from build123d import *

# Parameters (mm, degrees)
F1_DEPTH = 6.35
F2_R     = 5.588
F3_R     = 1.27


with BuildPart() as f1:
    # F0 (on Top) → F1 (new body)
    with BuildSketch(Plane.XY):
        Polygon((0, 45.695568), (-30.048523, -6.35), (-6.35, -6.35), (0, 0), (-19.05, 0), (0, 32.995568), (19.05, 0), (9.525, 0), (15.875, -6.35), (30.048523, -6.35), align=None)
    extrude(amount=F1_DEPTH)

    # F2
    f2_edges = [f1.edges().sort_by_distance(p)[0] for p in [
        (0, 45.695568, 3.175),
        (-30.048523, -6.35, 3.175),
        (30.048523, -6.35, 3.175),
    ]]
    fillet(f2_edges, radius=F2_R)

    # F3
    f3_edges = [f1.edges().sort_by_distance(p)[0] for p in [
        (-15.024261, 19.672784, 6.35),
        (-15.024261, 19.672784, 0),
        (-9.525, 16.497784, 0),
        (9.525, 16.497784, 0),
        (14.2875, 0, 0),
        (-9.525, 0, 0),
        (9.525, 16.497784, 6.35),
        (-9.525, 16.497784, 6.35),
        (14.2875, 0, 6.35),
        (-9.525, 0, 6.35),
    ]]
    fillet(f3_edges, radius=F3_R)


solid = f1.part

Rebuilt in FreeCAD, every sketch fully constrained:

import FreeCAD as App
import Part
import Sketcher
from FreeCAD import Vector
Q = App.Units.Quantity


def edges_at(feature, points):
    """Names of the edges that pass closest to the given points."""
    edges = feature.Shape.Edges
    near = lambda p: min(range(len(edges)), key=lambda i: edges[i].distToShape(Part.Vertex(*p))[0])
    return sorted({f"Edge{near(p) + 1}" for p in points})


def add_polygon(sketch, points):
    """Adds a closed chain of lines whose ends are joined by coincident constraints."""
    first, n = sketch.GeometryCount, len(points)
    for a, b in zip(points, points[1:] + points[:1]):
        sketch.addGeometry(Part.LineSegment(App.Vector(*a, 0), App.Vector(*b, 0)), False)
    for i in range(n):
        sketch.addConstraint(Sketcher.Constraint("Coincident", first + i, 2, first + (i + 1) % n, 1))

doc = App.newDocument("Part")
body = doc.addObject("PartDesign::Body", "Body")

sketch1 = body.newObject("Sketcher::SketchObject", "Sketch")
sketch1.AttachmentSupport = (doc.getObject("XY_Plane"), [""])
sketch1.MapMode = "FlatFace"
add_polygon(sketch1, [(0, 45.695568), (-30.048523, -6.35), (-6.35, -6.35), (0, 0), (-19.05, 0), (0, 32.995568), (19.05, 0), (9.525, 0), (15.875, -6.35), (30.048523, -6.35)])
sketch1.addConstraint(Sketcher.Constraint("Horizontal", 1))
sketch1.addConstraint(Sketcher.Constraint("Horizontal", 3))
sketch1.addConstraint(Sketcher.Constraint("Horizontal", 6))
sketch1.addConstraint(Sketcher.Constraint("Horizontal", 8))
sketch1.addConstraint(Sketcher.Constraint("Coincident", 2, 2, -1, 1))
sketch1.addConstraint(Sketcher.Constraint("Symmetric", 3, 2, 5, 2, -1, 1))
sketch1.addConstraint(Sketcher.Constraint("Symmetric", 0, 2, 8, 2, -2))
sketch1.addConstraint(Sketcher.Constraint("PointOnObject", 4, 2, -2))
sketch1.addConstraint(Sketcher.Constraint("PointOnObject", 9, 2, -2))
sketch1.addConstraint(Sketcher.Constraint("Parallel", 0, 4))
sketch1.addConstraint(Sketcher.Constraint("Perpendicular", 2, 7))
sketch1.addConstraint(Sketcher.Constraint("Equal", 2, 7))
sketch1.addConstraint(Sketcher.Constraint("Angle", 0, Q("-120 deg")))
sketch1.addConstraint(Sketcher.Constraint("DistanceX", 1, 2, 5, 2, Q("1 in")))
sketch1.addConstraint(Sketcher.Constraint("Distance", 4, Q("1.5 in")))
sketch1.addConstraint(Sketcher.Constraint("DistanceY", 4, 2, 9, 2, Q("0.5 in")))
sketch1.addConstraint(Sketcher.Constraint("DistanceX", 6, 2, 6, 1, Q("0.375 in")))
pad1 = body.newObject("PartDesign::Pad", "Pad")
pad1.Profile = sketch1
pad1.Length = Q("0.25 in")
doc.recompute()

fillet = body.newObject("PartDesign::Fillet", "Fillet")
fillet.Base = (pad1, edges_at(pad1, [(0, 45.696, 3.175), (-30.049, -6.35, 3.175), (30.049, -6.35, 3.175)]))
fillet.Radius = Q("0.22 in")
doc.recompute()

fillet2 = body.newObject("PartDesign::Fillet", "Fillet001")
fillet2.Base = (fillet, edges_at(fillet, [
    (-15.024, 19.673, 6.35),
    (-15.024, 19.673, 0),
    (-9.525, 16.498, 0),
    (9.525, 16.498, 0),
    (14.287, 0, 0),
    (-9.525, 0, 0),
    (9.525, 16.498, 6.35),
    (-9.525, 16.498, 6.35),
    (14.287, 0, 6.35),
    (-9.525, 0, 6.35),
]))
fillet2.Radius = Q("0.05 in")

doc.recompute()
